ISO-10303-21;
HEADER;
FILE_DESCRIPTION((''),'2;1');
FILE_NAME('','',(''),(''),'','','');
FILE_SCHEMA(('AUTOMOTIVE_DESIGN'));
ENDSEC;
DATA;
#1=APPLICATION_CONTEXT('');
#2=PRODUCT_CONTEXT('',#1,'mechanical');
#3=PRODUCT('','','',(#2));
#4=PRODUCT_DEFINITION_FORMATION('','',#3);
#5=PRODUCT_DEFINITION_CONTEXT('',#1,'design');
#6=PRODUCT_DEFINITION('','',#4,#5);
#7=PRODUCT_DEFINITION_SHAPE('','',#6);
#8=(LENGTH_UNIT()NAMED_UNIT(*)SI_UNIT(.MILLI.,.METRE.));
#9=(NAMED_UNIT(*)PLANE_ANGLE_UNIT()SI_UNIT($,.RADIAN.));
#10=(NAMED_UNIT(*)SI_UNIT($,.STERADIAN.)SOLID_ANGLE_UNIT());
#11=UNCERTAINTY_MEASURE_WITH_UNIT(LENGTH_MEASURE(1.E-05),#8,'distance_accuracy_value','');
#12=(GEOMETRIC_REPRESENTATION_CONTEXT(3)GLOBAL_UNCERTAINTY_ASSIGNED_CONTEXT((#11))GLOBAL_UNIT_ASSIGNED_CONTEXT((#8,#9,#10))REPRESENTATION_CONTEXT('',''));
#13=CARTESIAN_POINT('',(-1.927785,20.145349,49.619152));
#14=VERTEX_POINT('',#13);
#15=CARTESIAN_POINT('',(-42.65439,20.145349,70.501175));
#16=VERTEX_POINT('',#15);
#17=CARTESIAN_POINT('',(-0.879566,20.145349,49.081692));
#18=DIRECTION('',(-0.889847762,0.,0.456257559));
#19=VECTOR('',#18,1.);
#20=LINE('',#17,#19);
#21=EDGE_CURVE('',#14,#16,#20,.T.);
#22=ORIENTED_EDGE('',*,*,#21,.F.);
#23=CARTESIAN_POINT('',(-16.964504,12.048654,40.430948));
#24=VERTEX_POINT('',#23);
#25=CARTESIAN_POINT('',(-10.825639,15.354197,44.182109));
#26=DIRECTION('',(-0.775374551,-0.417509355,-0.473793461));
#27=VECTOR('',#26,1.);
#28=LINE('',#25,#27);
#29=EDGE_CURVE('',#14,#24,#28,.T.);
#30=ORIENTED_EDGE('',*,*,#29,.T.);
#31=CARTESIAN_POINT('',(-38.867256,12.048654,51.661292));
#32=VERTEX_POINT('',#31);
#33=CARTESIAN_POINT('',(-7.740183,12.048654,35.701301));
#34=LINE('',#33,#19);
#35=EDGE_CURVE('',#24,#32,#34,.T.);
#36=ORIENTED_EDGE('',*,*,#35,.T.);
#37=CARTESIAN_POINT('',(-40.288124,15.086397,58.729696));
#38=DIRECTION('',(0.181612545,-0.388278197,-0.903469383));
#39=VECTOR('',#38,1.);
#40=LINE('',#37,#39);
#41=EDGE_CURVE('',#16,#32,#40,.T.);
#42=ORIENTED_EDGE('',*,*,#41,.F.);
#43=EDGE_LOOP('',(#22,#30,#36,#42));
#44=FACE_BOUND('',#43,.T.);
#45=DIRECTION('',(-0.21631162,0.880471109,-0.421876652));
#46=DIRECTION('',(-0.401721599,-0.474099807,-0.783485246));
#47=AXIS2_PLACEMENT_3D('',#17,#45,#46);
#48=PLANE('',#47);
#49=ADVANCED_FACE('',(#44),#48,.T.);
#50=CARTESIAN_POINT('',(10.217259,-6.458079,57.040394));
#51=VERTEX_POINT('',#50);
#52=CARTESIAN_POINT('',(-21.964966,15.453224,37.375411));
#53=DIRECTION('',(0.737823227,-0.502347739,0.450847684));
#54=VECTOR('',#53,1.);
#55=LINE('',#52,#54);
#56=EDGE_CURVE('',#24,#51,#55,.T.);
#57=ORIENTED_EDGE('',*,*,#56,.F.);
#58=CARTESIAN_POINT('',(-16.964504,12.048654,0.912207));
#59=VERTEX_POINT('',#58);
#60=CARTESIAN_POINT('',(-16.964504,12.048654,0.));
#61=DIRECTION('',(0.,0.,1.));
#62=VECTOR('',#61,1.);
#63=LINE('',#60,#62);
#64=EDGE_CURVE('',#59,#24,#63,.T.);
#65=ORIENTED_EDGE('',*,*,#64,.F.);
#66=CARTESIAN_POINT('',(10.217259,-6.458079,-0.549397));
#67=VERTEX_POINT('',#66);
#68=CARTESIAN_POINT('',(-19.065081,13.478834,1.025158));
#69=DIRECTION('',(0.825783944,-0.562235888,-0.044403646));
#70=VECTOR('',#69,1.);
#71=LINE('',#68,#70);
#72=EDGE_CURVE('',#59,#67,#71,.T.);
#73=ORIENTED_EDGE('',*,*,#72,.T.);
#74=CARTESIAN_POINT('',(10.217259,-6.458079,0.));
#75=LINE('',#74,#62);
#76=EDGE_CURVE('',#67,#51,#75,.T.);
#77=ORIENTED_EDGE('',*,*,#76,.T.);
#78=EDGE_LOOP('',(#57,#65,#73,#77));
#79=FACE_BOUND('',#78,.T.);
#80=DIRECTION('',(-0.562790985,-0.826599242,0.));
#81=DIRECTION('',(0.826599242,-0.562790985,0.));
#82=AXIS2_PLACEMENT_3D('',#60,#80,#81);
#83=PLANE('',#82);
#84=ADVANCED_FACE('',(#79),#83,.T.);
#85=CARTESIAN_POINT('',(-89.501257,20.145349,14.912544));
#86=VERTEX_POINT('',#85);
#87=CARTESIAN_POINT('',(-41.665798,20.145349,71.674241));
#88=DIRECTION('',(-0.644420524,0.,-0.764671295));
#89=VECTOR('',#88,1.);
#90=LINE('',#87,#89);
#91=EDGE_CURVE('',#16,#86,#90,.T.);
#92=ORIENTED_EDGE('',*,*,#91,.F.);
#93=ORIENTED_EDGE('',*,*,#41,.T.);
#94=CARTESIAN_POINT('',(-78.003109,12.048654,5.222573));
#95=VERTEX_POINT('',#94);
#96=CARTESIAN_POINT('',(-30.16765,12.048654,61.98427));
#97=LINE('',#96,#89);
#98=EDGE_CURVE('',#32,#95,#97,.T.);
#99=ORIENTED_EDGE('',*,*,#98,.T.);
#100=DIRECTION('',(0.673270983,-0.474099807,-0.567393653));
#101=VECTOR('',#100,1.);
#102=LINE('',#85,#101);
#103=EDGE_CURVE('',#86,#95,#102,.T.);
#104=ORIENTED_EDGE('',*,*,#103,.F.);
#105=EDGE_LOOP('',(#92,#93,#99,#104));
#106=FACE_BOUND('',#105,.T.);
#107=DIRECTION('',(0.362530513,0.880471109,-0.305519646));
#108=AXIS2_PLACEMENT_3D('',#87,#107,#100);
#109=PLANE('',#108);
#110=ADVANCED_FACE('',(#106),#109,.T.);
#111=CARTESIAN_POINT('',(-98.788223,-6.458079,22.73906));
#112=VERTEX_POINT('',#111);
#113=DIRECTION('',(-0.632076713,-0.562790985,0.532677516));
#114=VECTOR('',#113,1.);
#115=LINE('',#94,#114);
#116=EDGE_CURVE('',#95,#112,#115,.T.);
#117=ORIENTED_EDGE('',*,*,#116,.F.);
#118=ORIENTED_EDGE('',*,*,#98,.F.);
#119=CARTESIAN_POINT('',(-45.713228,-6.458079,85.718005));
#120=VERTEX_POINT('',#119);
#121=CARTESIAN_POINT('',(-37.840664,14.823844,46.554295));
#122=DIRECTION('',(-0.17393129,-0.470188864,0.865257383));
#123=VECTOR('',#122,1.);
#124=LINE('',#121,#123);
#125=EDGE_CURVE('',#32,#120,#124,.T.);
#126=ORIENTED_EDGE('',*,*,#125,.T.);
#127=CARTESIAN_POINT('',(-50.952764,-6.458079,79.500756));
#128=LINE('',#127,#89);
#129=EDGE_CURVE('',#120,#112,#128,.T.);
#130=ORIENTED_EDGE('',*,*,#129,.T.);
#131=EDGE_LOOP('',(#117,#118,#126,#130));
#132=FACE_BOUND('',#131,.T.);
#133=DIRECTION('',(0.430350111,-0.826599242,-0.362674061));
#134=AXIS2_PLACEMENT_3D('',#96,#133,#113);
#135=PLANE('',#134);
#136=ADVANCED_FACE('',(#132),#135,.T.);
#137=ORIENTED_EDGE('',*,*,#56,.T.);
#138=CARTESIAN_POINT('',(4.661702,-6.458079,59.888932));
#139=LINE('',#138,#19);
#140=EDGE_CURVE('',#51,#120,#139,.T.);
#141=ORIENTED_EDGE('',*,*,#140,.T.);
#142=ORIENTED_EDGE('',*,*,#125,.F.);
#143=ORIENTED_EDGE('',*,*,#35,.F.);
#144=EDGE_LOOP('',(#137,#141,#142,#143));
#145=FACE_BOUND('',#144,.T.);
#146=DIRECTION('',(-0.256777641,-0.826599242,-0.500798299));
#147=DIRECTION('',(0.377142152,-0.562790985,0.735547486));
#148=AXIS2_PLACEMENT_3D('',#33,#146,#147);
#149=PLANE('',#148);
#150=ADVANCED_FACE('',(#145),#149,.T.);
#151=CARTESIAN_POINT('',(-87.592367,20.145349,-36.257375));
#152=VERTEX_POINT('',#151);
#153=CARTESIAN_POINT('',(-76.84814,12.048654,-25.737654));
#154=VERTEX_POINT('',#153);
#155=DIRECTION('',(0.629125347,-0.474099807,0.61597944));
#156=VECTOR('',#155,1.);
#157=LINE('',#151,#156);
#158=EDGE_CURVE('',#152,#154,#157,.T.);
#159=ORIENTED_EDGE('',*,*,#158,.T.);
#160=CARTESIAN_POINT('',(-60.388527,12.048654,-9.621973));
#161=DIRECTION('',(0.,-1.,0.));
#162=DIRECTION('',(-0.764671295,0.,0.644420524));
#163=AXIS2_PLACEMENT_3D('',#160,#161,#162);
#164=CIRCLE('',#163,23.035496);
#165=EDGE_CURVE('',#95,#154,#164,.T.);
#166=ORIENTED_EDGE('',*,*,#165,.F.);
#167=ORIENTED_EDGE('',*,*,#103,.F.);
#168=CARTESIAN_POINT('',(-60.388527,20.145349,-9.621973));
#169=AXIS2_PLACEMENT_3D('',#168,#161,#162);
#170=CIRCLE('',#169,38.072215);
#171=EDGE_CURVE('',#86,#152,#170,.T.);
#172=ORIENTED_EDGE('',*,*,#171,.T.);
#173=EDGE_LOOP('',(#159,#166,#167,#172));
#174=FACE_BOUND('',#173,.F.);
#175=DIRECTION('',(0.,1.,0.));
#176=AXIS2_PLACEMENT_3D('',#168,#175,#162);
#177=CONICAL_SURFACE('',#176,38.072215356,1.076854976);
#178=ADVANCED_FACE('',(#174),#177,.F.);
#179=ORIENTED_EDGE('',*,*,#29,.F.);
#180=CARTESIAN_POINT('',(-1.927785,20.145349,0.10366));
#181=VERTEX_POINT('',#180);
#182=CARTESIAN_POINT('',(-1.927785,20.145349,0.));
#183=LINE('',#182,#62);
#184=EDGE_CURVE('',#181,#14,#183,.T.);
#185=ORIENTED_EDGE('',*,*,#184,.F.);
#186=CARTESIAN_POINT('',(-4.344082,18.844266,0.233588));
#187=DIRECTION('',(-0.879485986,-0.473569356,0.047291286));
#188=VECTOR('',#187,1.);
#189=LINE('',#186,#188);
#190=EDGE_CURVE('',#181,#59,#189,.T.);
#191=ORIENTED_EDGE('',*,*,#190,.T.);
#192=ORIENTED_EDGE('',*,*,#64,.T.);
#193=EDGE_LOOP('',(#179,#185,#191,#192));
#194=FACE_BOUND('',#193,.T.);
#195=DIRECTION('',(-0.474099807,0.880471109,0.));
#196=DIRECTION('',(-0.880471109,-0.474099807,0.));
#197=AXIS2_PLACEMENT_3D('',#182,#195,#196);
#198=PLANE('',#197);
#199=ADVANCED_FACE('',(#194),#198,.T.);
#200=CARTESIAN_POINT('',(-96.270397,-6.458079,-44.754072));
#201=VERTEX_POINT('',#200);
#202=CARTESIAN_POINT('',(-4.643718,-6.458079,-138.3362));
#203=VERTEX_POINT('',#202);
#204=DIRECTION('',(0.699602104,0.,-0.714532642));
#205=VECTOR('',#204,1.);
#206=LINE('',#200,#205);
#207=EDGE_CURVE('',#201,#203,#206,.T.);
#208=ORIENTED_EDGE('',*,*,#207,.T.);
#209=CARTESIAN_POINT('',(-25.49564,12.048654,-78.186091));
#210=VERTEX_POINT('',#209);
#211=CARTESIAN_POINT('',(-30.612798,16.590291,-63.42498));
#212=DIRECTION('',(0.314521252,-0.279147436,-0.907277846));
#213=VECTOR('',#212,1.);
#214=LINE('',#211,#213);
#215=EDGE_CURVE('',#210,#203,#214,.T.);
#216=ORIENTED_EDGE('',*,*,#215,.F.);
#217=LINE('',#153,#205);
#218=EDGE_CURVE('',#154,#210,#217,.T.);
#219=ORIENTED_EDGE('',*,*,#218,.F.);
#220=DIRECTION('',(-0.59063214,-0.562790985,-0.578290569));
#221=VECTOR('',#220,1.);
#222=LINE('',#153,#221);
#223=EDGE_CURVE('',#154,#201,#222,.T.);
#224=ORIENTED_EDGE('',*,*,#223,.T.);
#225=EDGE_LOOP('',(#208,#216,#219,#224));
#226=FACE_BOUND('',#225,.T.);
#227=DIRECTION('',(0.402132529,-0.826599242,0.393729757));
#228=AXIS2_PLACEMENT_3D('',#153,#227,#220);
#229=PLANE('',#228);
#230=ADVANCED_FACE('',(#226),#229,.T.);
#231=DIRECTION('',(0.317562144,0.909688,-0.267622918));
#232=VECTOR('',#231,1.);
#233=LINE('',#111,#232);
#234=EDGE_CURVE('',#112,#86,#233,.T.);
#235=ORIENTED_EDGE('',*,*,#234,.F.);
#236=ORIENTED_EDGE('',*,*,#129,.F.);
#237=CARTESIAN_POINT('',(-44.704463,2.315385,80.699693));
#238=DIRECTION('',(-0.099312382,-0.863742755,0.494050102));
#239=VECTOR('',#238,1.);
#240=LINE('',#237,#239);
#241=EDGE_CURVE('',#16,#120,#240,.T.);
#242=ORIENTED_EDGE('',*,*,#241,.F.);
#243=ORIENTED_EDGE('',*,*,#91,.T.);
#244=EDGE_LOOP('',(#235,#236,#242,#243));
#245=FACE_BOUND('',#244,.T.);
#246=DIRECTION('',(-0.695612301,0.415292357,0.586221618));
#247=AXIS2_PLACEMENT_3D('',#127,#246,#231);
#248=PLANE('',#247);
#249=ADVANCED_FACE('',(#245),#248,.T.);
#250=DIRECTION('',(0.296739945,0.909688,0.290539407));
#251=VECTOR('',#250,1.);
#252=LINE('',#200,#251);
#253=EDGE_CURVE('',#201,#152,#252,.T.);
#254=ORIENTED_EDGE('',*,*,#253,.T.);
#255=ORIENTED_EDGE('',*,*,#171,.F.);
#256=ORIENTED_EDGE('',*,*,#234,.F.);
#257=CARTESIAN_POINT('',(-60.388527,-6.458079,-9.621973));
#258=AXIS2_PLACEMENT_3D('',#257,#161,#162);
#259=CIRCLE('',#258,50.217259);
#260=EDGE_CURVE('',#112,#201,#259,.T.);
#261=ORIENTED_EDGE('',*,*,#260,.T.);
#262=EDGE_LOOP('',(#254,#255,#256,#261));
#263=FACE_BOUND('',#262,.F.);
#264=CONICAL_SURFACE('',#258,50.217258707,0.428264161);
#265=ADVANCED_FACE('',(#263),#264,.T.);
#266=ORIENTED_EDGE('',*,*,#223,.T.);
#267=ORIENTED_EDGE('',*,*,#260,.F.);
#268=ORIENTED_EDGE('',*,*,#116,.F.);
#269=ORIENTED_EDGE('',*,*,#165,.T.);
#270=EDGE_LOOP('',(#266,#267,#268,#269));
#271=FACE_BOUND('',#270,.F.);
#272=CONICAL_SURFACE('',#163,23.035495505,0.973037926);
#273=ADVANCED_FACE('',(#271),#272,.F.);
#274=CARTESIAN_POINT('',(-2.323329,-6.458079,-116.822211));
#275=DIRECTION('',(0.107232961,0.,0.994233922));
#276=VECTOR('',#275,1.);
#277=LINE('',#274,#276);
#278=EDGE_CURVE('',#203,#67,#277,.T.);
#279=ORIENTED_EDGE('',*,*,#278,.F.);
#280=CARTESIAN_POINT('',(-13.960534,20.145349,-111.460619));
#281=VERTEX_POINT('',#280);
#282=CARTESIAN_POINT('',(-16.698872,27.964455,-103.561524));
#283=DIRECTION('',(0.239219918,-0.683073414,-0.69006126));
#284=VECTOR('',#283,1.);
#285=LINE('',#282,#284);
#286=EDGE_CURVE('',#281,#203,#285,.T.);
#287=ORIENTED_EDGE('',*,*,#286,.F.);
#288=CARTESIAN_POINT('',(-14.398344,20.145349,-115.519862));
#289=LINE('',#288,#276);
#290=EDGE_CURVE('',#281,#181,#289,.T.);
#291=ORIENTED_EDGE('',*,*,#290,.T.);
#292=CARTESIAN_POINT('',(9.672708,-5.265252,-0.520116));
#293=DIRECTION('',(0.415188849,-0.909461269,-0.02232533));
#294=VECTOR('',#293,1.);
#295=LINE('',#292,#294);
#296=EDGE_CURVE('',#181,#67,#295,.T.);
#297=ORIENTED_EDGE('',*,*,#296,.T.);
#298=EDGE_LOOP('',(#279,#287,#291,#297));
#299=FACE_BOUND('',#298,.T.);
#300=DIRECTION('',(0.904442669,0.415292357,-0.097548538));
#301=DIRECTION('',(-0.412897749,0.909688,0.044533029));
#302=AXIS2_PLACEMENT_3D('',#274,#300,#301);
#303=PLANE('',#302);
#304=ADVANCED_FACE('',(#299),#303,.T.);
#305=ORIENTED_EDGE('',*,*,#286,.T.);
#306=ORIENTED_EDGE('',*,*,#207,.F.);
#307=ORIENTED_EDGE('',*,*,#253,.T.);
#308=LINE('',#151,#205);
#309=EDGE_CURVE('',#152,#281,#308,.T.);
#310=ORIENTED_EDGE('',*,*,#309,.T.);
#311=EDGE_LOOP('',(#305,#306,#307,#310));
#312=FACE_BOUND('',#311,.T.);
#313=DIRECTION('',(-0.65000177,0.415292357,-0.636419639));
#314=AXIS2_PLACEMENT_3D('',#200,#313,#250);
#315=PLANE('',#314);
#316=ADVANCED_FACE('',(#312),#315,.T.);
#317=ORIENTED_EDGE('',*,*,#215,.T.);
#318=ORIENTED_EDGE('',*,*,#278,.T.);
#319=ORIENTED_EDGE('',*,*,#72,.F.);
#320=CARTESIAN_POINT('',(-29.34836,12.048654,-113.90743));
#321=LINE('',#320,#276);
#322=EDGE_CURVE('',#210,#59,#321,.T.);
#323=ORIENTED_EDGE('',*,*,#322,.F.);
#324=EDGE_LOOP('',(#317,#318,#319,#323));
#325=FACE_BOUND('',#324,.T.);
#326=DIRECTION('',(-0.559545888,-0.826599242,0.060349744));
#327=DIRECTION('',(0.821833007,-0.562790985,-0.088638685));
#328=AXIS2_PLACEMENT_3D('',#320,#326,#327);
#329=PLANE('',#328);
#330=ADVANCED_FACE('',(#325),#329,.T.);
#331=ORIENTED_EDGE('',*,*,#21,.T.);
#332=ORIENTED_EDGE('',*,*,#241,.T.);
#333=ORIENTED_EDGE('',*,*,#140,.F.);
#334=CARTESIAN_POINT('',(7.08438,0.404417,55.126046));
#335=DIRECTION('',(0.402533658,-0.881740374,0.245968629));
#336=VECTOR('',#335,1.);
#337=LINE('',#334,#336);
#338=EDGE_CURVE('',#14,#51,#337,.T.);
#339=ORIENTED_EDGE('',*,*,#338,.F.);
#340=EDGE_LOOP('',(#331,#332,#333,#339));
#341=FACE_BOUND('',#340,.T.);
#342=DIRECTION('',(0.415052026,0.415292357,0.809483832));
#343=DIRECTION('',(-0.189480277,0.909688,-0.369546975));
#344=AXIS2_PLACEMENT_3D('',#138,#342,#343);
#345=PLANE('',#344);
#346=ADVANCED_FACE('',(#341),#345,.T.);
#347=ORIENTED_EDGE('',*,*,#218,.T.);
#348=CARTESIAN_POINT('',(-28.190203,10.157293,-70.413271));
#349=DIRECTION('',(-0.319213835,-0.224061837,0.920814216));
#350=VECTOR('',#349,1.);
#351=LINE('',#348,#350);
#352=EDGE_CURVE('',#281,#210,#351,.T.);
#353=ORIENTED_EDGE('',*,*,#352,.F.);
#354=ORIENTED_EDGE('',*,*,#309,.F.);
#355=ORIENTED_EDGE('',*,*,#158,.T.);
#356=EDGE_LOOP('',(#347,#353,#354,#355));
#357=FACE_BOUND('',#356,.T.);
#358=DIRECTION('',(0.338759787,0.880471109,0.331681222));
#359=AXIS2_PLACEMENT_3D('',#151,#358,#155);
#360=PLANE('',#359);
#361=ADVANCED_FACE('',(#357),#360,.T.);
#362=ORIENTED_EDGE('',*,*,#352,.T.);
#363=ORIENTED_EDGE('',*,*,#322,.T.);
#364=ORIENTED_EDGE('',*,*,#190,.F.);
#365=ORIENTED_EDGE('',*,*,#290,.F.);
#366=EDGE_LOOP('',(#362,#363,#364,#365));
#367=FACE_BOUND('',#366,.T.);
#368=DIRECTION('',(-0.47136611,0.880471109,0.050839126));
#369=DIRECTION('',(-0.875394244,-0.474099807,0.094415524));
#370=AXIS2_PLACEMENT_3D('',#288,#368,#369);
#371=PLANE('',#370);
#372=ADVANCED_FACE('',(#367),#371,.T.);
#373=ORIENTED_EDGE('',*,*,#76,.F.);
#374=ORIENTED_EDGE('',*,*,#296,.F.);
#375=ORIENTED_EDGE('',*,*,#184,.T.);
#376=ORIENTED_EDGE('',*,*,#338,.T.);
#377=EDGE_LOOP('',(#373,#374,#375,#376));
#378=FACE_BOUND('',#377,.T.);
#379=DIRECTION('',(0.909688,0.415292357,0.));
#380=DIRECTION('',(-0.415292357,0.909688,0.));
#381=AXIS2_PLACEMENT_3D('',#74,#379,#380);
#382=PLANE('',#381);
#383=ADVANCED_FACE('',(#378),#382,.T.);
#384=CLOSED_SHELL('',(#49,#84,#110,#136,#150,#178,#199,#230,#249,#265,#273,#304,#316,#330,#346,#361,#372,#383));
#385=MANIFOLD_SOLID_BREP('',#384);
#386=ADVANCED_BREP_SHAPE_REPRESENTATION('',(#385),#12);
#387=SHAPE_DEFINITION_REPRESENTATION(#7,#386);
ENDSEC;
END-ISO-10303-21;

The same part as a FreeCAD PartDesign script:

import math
import FreeCAD as App
import Part
import Sketcher

V = App.Vector


def add_polygon(sketch, points):
    """Adds a closed chain of lines whose ends are joined by coincident constraints."""
    first, n = sketch.GeometryCount, len(points)
    for a, b in zip(points, points[1:] + points[:1]):
        sketch.addGeometry(Part.LineSegment(App.Vector(*a, 0), App.Vector(*b, 0)), False)
    for i in range(n):
        sketch.addConstraint(Sketcher.Constraint("Coincident", first + i, 2, first + (i + 1) % n, 1))

doc = App.newDocument("Part")
params = doc.addObject("Spreadsheet::Sheet", "Params")
for row, (alias, value) in enumerate([
    ("sketch2_radius", "40 mm"),
], start=1):
    params.set(f"A{row}", alias)
    params.set(f"B{row}", "=" + value)
    params.setAlias(f"B{row}", alias)

body = doc.addObject("PartDesign::Body", "Body")

# Sketch on XY plane
sketch1 = body.newObject("Sketcher::SketchObject", "Sketch")
sketch1.AttachmentSupport = (doc.getObject("XY_Plane"), [""])
sketch1.MapMode = "FlatFace"
add_polygon(sketch1, [(10.217259, -6.458079), (-1.927785, 20.145349), (-16.964504, 12.048654)])  # lines 0-2
sketch1.addConstraint(Sketcher.Constraint("Distance", 1, 17.078039))
sketch1.addConstraint(Sketcher.Constraint("DistanceY", -1, 1, 0, 2, 20.145349))
sketch1.addConstraint(Sketcher.Constraint("DistanceX", -1, 1, 2, 2, 10.217259))
sketch1.addConstraint(Sketcher.Constraint("DistanceY", 2, 2, -1, 1, 6.458079))
sketch1.addConstraint(Sketcher.Constraint("DistanceX", 1, 2, 0, 2, 15.03672))
sketch1.addConstraint(Sketcher.Constraint("Distance", 0, 29.244563))

# Sketch on XZ plane
sketch2 = body.newObject("Sketcher::SketchObject", "Sketch001")
sketch2.AttachmentSupport = (doc.getObject("XZ_Plane"), [""])
sketch2.MapMode = "FlatFace"
sketch2.addGeometry(Part.LineSegment(V(0, 0, 0), V(0, 50.797127, 0)), False)
sketch2.addGeometry(Part.LineSegment(V(0, 50.797127, 0), V(-43.13992, 72.916545, 0)), False)
sketch2.addGeometry(Part.LineSegment(V(-43.13992, 72.916545, 0), V(-90.975379, 16.154848, 0)), False)
sketch2.addGeometry(Part.ArcOfCircle(Part.Circle(V(-60.388527, -9.621973, 0), V(0, 0, 1), 40), math.radians(139.877758), math.radians(224.395089)), False)
sketch2.addGeometry(Part.LineSegment(V(-88.969832, -37.606057, 0), V(-12.481675, -115.726584, 0)), False)
sketch2.addGeometry(Part.LineSegment(V(-12.481675, -115.726584, 0), V(0, 0, 0)), False)
sketch2.addConstraint(Sketcher.Constraint("Coincident", 0, 2, 1, 1))
sketch2.addConstraint(Sketcher.Constraint("Coincident", 1, 2, 2, 1))
sketch2.addConstraint(Sketcher.Constraint("Tangent", 2, 2, 3, 1))
sketch2.addConstraint(Sketcher.Constraint("Tangent", 3, 2, 4, 1))
sketch2.addConstraint(Sketcher.Constraint("Coincident", 4, 2, 5, 1))
sketch2.addConstraint(Sketcher.Constraint("Coincident", 5, 2, 0, 1))
sketch2.addConstraint(Sketcher.Constraint("Vertical", 0))
sketch2.addConstraint(Sketcher.Constraint("Coincident", 5, 2, -1, 1))
sketch2.addConstraint(Sketcher.Constraint("Radius", 3, 40.0))
sketch2.addConstraint(Sketcher.Constraint("DistanceY", 3, 3, 0, 2, 60.4191))
sketch2.addConstraint(Sketcher.Constraint("DistanceY", 3, 2, 1, 2, 110.522602))
sketch2.addConstraint(Sketcher.Constraint("Distance", 2, 74.230192))
sketch2.addConstraint(Sketcher.Constraint("DistanceY", 0, 1, 0, 2, 50.797127))
sketch2.addConstraint(Sketcher.Constraint("DistanceX", 1, 2, -1, 1, 43.13992))
sketch2.addConstraint(Sketcher.Constraint("DistanceX", 2, 2, -1, 1, 90.975379))
sketch2.addConstraint(Sketcher.Constraint("DistanceY", 4, 2, 3, 3, 106.104612))
sketch2.setExpression("Constraints[8]", "Params.sketch2_radius")
doc.recompute()

additivepipe = body.newObject("PartDesign::AdditivePipe", "AdditivePipe")
additivepipe.Profile = sketch1
additivepipe.Spine = (sketch2, ["Edge1", "Edge2", "Edge3", "Edge4", "Edge5", "Edge6"])
additivepipe.Transition = "Right corner"

doc.recompute()
